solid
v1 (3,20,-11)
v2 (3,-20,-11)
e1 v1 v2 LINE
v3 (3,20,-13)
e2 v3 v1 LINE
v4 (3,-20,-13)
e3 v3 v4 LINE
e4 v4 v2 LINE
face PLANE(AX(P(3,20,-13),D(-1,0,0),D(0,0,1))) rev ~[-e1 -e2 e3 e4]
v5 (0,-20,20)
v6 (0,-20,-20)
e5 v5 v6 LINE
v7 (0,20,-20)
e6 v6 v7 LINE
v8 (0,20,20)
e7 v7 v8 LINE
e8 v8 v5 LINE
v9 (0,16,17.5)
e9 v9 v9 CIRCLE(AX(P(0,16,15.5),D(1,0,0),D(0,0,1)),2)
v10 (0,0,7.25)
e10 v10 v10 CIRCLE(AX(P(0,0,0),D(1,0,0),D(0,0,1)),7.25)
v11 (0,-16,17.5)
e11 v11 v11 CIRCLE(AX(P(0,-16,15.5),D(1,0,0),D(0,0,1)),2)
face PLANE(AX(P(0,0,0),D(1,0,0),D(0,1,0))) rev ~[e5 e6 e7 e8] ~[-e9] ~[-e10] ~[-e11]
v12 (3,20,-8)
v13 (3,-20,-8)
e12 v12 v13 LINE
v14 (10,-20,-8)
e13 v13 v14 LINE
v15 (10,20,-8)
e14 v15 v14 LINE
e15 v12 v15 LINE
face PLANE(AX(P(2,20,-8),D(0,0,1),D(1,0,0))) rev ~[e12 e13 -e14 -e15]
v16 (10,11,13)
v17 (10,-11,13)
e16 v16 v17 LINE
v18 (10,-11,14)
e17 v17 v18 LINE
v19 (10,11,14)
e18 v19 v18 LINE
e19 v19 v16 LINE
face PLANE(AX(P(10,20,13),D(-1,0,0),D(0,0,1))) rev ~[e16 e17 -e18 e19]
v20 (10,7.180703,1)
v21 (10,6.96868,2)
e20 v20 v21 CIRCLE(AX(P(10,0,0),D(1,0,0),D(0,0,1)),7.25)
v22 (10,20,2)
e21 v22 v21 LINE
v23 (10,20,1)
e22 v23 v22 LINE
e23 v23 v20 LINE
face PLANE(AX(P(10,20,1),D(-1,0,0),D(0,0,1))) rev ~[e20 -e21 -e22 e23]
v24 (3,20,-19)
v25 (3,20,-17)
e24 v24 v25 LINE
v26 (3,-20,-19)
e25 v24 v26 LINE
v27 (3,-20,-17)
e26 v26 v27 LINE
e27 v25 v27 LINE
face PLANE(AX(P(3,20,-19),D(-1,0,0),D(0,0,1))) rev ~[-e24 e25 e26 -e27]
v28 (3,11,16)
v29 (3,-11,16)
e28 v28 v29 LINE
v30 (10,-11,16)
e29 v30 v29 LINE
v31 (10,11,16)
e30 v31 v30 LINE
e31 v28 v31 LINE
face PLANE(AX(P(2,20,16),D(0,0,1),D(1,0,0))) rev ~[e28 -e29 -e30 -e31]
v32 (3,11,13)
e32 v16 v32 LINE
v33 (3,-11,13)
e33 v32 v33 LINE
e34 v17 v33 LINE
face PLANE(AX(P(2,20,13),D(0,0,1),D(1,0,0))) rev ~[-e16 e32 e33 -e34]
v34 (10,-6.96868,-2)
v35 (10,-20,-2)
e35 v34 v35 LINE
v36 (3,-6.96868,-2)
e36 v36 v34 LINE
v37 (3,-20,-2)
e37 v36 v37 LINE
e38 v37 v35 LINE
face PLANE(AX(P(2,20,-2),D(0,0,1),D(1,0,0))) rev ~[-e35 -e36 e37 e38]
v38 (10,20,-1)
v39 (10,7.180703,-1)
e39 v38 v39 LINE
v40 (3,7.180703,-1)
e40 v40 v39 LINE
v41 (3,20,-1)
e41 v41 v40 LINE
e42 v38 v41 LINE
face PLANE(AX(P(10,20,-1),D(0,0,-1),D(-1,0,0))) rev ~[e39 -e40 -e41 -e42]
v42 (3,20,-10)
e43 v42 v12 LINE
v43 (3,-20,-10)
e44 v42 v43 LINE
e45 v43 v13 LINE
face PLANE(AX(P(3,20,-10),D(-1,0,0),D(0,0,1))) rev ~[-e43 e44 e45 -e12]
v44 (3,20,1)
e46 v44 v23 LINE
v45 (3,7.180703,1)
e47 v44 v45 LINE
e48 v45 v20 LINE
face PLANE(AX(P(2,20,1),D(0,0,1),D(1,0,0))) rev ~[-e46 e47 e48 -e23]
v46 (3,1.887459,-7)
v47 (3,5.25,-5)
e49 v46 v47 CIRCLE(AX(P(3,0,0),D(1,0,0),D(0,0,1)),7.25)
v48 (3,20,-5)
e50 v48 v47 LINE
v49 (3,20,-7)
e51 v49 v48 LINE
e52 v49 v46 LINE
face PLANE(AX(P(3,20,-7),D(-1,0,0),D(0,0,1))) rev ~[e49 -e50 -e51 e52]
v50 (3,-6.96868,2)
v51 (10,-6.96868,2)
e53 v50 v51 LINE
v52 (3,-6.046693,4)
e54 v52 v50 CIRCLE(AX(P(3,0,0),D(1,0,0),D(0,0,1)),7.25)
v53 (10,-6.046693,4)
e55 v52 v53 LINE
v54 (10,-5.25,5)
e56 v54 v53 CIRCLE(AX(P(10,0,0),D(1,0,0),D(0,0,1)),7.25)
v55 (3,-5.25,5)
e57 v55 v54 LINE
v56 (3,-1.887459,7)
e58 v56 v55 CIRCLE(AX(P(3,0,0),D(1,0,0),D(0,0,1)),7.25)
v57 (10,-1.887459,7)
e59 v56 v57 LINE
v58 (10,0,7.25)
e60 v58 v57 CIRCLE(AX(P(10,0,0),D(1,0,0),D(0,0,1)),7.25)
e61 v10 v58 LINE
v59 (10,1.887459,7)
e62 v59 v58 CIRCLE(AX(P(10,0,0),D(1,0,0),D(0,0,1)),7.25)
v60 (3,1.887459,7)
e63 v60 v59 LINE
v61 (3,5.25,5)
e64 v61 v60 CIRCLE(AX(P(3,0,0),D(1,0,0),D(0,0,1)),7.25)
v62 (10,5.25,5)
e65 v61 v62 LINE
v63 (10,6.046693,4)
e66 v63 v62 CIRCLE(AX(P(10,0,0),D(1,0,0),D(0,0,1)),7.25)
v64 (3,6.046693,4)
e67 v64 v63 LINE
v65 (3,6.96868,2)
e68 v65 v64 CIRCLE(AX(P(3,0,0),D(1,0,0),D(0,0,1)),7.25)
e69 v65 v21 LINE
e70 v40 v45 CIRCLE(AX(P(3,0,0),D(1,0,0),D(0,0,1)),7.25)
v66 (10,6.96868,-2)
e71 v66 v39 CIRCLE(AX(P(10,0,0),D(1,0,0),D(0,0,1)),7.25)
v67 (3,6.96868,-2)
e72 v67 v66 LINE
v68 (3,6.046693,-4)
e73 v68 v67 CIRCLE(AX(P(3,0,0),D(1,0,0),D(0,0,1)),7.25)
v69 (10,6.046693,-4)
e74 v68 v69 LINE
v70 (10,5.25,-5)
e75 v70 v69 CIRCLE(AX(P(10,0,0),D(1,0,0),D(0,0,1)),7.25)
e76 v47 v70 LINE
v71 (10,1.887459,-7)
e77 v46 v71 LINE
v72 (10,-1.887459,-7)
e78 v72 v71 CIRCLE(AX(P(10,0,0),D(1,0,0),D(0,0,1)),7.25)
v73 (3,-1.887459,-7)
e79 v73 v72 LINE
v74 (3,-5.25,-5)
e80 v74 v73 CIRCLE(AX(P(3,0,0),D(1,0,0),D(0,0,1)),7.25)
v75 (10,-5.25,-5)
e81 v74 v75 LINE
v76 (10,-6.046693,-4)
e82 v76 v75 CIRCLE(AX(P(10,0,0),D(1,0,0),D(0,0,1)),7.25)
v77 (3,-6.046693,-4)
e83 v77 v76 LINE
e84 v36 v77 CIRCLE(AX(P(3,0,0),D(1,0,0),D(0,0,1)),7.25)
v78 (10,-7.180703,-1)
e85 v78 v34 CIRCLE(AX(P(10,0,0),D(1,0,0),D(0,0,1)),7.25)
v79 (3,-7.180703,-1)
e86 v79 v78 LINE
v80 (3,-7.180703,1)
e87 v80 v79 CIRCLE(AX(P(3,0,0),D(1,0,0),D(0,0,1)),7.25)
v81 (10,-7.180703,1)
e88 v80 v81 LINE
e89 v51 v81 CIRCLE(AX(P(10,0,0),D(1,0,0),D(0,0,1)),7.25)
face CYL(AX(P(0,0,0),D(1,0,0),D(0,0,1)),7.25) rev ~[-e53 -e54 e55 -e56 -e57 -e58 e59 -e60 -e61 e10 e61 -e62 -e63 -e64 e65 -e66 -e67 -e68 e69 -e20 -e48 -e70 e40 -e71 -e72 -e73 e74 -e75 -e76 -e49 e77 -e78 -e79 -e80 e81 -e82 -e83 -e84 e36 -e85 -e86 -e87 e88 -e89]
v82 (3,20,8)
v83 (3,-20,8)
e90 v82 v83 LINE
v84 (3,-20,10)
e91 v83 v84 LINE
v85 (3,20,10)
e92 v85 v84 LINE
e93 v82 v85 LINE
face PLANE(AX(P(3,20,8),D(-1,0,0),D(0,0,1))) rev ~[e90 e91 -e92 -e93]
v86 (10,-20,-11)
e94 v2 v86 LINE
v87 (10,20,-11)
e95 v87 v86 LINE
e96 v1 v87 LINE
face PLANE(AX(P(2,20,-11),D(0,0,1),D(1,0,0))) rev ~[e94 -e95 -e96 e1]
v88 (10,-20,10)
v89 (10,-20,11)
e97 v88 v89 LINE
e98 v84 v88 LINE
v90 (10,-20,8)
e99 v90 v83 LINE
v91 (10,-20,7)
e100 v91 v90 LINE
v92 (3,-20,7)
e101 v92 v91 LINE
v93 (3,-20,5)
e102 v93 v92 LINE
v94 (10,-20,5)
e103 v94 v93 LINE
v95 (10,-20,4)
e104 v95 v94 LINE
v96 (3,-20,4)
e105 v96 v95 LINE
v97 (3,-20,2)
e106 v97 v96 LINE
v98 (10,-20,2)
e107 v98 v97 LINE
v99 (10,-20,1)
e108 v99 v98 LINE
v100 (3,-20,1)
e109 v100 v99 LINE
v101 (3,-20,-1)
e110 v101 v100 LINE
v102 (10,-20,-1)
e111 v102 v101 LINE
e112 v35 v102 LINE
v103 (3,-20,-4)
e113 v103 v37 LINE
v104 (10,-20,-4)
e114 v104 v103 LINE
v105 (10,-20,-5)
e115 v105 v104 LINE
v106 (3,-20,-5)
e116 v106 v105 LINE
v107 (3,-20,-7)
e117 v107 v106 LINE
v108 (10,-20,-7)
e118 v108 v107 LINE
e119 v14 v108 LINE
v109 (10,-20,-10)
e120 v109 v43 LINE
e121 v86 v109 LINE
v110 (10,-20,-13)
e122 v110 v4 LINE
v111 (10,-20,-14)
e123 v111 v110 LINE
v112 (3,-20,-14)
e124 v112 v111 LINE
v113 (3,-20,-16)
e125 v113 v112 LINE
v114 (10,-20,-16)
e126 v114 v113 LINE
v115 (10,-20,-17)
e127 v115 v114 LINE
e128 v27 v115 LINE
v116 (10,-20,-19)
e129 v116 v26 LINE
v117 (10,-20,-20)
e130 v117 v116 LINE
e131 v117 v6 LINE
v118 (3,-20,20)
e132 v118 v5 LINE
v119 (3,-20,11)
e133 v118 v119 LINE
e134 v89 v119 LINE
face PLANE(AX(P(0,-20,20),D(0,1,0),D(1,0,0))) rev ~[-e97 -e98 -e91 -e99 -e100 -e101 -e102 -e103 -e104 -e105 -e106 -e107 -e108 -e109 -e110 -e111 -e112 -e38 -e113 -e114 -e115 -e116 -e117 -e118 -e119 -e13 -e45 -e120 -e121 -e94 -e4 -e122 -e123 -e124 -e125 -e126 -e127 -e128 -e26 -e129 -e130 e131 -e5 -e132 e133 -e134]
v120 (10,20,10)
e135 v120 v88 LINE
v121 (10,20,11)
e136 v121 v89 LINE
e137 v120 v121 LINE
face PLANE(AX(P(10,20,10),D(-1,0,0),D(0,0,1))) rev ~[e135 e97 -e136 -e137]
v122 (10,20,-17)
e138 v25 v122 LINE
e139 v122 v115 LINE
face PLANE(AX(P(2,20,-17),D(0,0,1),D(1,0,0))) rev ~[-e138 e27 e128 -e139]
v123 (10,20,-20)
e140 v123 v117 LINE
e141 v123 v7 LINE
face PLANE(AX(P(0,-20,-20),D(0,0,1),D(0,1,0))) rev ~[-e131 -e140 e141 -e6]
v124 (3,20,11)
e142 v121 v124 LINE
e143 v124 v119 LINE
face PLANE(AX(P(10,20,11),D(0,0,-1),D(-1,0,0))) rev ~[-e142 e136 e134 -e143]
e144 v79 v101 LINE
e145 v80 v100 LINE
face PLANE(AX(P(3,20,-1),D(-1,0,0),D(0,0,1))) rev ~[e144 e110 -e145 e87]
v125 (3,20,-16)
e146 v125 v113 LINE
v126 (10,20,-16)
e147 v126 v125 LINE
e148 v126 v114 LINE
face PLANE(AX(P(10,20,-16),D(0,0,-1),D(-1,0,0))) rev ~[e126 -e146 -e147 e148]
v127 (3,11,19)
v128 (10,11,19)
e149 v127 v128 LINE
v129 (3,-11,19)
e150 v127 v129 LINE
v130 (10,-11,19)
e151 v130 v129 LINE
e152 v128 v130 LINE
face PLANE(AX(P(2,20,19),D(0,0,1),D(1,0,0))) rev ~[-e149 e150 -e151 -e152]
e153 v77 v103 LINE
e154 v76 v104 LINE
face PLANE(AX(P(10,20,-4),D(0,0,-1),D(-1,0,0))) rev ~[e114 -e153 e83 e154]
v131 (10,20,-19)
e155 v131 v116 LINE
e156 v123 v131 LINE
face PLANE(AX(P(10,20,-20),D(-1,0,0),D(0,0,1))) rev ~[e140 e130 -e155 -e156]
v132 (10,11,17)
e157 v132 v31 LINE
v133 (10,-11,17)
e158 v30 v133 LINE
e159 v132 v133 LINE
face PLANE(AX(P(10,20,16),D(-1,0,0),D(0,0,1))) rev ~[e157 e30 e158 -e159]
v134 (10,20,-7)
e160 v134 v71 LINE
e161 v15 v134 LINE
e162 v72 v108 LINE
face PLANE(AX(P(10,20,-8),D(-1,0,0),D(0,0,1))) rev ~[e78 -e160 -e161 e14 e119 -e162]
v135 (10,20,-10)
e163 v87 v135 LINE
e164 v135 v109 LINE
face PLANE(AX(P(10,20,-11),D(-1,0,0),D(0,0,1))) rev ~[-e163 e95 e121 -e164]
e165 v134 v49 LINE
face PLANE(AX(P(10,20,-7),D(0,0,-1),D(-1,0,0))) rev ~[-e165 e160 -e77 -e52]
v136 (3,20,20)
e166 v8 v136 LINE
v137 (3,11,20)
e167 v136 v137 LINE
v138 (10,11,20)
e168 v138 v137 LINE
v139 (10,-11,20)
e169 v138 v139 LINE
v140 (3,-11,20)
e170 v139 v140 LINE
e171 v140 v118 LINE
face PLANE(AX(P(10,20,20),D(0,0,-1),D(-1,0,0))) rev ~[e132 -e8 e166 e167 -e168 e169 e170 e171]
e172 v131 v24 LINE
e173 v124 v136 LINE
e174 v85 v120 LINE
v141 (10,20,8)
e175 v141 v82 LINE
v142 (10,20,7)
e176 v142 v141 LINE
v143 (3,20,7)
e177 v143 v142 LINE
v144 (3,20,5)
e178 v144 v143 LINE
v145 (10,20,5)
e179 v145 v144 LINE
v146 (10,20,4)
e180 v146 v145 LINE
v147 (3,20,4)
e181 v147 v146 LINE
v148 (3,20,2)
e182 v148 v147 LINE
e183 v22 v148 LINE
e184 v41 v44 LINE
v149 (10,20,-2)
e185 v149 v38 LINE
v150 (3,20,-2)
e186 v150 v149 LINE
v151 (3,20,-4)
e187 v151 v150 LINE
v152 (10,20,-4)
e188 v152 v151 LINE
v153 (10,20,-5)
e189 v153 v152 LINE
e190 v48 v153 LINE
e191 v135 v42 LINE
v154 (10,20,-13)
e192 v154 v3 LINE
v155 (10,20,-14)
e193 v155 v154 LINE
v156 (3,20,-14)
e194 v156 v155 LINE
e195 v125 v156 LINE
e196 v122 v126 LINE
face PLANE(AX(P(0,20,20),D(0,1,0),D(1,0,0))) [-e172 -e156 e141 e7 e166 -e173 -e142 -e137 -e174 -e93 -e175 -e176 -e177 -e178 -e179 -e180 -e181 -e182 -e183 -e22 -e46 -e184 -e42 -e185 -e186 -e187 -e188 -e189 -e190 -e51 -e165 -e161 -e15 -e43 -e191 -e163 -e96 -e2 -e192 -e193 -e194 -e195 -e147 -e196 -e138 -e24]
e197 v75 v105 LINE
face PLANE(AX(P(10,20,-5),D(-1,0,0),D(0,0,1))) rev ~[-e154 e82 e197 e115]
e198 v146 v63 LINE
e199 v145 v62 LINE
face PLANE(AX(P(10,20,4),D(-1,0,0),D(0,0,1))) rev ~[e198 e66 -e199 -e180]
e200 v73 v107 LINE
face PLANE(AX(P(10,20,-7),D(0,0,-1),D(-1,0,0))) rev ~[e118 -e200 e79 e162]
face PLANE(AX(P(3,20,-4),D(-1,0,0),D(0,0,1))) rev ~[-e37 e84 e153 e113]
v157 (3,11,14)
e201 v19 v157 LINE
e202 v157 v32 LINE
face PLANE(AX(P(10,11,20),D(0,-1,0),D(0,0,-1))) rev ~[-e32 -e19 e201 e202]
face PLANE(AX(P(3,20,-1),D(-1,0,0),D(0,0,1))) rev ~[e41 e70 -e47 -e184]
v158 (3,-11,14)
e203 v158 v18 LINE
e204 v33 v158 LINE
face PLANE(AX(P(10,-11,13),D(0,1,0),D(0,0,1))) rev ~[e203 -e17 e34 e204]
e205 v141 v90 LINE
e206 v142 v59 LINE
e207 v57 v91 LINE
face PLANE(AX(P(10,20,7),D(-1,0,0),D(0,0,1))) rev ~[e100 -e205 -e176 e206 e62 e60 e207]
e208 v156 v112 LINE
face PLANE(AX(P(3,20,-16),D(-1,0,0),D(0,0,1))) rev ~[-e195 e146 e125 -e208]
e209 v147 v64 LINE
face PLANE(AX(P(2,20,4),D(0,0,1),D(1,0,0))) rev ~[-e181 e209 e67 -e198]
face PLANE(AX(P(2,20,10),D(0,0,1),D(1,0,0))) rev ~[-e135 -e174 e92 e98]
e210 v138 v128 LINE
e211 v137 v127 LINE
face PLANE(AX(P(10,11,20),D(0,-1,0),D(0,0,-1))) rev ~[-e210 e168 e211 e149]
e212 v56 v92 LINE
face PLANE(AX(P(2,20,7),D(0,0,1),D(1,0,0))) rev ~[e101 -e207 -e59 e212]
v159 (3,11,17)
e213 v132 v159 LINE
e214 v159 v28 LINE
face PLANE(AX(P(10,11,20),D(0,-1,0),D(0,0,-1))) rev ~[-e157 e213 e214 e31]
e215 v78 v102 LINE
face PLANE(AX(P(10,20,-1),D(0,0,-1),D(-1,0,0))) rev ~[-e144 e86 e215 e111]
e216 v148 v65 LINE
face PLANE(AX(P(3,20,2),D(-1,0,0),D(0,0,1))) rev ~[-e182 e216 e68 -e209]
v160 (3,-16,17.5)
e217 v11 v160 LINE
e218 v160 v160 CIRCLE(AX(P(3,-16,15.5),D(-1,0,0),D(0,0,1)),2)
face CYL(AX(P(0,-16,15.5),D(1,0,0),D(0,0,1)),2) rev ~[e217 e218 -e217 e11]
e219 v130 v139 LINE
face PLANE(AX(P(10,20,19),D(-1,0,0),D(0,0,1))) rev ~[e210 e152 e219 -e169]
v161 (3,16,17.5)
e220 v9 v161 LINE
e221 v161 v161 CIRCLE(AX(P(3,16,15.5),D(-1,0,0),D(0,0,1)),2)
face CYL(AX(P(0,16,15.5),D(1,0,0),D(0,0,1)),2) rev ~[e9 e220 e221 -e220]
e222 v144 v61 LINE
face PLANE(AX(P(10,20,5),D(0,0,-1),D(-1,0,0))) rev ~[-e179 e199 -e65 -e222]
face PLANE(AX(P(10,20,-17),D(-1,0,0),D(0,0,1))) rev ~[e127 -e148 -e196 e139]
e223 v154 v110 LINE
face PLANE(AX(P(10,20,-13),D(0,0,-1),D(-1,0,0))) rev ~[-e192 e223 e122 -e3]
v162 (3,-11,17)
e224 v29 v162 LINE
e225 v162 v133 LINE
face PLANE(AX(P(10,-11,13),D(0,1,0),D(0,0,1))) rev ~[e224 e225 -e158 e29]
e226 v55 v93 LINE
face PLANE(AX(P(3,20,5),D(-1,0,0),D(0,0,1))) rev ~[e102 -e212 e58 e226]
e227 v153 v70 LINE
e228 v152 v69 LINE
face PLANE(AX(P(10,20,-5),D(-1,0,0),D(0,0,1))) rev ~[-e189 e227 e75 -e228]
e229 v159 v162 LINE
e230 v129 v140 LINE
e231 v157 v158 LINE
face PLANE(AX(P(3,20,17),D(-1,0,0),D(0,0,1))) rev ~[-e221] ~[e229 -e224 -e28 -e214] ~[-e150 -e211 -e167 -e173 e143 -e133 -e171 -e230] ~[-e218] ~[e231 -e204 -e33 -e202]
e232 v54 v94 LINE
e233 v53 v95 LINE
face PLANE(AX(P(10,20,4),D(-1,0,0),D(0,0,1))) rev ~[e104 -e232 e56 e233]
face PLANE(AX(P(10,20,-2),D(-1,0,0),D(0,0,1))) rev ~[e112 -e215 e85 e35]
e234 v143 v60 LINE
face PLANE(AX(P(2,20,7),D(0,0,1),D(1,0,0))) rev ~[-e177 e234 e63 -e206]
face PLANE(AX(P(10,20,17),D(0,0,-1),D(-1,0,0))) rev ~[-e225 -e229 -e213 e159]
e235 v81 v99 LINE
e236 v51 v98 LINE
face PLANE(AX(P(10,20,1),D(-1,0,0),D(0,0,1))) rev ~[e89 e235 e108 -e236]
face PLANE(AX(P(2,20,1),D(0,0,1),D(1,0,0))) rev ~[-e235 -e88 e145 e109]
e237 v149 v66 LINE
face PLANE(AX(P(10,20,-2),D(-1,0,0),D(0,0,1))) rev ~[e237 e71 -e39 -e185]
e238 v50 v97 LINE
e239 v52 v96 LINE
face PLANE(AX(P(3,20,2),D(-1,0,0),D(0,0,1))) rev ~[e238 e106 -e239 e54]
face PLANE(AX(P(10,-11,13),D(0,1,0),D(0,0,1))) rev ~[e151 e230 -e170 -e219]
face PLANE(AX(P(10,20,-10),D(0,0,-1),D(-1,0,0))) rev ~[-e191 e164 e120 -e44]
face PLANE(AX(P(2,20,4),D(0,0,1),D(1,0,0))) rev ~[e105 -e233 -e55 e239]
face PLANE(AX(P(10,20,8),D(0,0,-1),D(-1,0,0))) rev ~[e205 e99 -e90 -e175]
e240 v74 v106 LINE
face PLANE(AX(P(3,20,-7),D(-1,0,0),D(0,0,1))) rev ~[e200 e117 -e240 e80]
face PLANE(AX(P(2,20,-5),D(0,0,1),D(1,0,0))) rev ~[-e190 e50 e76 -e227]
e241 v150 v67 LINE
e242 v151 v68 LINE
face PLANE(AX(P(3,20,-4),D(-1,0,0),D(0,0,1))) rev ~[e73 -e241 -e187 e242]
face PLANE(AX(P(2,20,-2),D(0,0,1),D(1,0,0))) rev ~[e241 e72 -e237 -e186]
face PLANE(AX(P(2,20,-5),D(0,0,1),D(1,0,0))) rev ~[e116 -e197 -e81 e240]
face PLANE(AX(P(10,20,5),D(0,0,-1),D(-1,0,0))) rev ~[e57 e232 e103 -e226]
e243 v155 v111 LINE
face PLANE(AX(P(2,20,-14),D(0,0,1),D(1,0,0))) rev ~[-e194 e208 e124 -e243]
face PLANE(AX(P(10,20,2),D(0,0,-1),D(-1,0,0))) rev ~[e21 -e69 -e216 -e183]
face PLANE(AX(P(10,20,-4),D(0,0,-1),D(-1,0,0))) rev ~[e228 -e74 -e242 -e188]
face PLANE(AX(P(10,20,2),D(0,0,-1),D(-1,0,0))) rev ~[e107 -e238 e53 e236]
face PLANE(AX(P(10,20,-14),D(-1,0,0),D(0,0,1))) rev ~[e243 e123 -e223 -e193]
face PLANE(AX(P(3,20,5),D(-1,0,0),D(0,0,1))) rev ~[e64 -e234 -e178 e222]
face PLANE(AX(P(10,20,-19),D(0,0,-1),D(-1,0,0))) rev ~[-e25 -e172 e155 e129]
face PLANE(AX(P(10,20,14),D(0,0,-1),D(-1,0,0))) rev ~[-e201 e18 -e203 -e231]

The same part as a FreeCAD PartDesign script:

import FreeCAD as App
import Part
import Sketcher
from FreeCAD import Vector


def add_polygon(sketch, points):
    """Adds a closed chain of lines whose ends are joined by coincident constraints."""
    first, n = sketch.GeometryCount, len(points)
    for a, b in zip(points, points[1:] + points[:1]):
        sketch.addGeometry(Part.LineSegment(App.Vector(*a, 0), App.Vector(*b, 0)), False)
    for i in range(n):
        sketch.addConstraint(Sketcher.Constraint("Coincident", first + i, 2, first + (i + 1) % n, 1))

doc = App.newDocument("Part")
body = doc.addObject("PartDesign::Body", "Body")

# Sketch on YZ plane
sketch1 = body.newObject("Sketcher::SketchObject", "Sketch")
sketch1.AttachmentSupport = (doc.getObject("YZ_Plane"), [""])
sketch1.MapMode = "FlatFace"
add_polygon(sketch1, [(20, -20), (20, 20), (-20, 20), (-20, -20)])  # lines 0-3
sketch1.addConstraint(Sketcher.Constraint("Vertical", 0))
sketch1.addConstraint(Sketcher.Constraint("Horizontal", 1))
sketch1.addConstraint(Sketcher.Constraint("Vertical", 2))
sketch1.addConstraint(Sketcher.Constraint("Horizontal", 3))
sketch1.addConstraint(Sketcher.Constraint("Symmetric", 0, 2, 2, 2, -1, 1))
sketch1.addConstraint(Sketcher.Constraint("Equal", 3, 0))
sketch1.addConstraint(Sketcher.Constraint("DistanceX", 1, 2, 1, 1, 40.0))
pad1 = body.newObject("PartDesign::Pad", "Pad")
pad1.Profile = sketch1
pad1.Length = 2

# Sketch on XZ plane
sketch2 = body.newObject("Sketcher::SketchObject", "Sketch001")
sketch2.AttachmentSupport = (doc.getObject("XZ_Plane"), [""])
sketch2.MapMode = "FlatFace"
sketch2.AttachmentOffset = App.Placement(Vector(0, 0, -20), App.Rotation())
add_polygon(sketch2, [(10, -20), (2, -20), (2, -17), (3, -17), (3, -19), (10, -19)])  # lines 0-5
sketch2.addConstraint(Sketcher.Constraint("Horizontal", 0))
sketch2.addConstraint(Sketcher.Constraint("Vertical", 1))
sketch2.addConstraint(Sketcher.Constraint("Horizontal", 2))
sketch2.addConstraint(Sketcher.Constraint("Vertical", 3))
sketch2.addConstraint(Sketcher.Constraint("Horizontal", 4))
sketch2.addConstraint(Sketcher.Constraint("Vertical", 5))
sketch2.addConstraint(Sketcher.Constraint("Equal", 2, 5))
sketch2.addConstraint(Sketcher.Constraint("DistanceX", 0, 2, 0, 1, 8.0))
sketch2.addConstraint(Sketcher.Constraint("DistanceX", 2, 1, 2, 2, 1.0))
sketch2.addConstraint(Sketcher.Constraint("DistanceY", 3, 2, 3, 1, 2.0))
sketch2.addConstraint(Sketcher.Constraint("DistanceX", -1, 1, 0, 2, 2.0))
sketch2.addConstraint(Sketcher.Constraint("DistanceY", 0, 2, -1, 1, 20.0))
pad2 = body.newObject("PartDesign::Pad", "Pad001")
pad2.Profile = sketch2
pad2.Length = 40
doc.recompute()

linearpattern = body.newObject("PartDesign::LinearPattern", "LinearPattern")
linearpattern.Originals = [pad2]
linearpattern.Direction = (doc.getObject("Z_Axis"), [""])
linearpattern.Mode = "offset"
linearpattern.Offset = 3
linearpattern.Occurrences = 13
body.Tip = linearpattern

# Sketch on XZ plane
sketch3 = body.newObject("Sketcher::SketchObject", "Sketch002")
sketch3.AttachmentSupport = (doc.getObject("XZ_Plane"), [""])
sketch3.MapMode = "FlatFace"
sketch3.AttachmentOffset = App.Placement(Vector(0, 0, -20), App.Rotation())
add_polygon(sketch3, [(10, 19), (2, 19), (2, 20), (10, 20)])  # lines 0-3
sketch3.addConstraint(Sketcher.Constraint("Horizontal", 0))
sketch3.addConstraint(Sketcher.Constraint("Vertical", 1))
sketch3.addConstraint(Sketcher.Constraint("Horizontal", 2))
sketch3.addConstraint(Sketcher.Constraint("Vertical", 3))
sketch3.addConstraint(Sketcher.Constraint("DistanceX", 0, 2, 0, 1, 8.0))
sketch3.addConstraint(Sketcher.Constraint("DistanceY", 1, 1, 1, 2, 1.0))
sketch3.addConstraint(Sketcher.Constraint("DistanceX", -1, 1, 0, 2, 2.0))
sketch3.addConstraint(Sketcher.Constraint("DistanceY", -1, 1, 0, 2, 19.0))
pad3 = body.newObject("PartDesign::Pad", "Pad002")
pad3.Profile = sketch3
pad3.Length = 40

# Sketch on YZ plane
sketch4 = body.newObject("Sketcher::SketchObject", "Sketch003")
sketch4.AttachmentSupport = (doc.getObject("YZ_Plane"), [""])
sketch4.MapMode = "FlatFace"
sketch4.addGeometry(Part.Circle(Vector(0, 0, 0), Vector(0, 0, 1), 7), False)
sketch4.addConstraint(Sketcher.Constraint("Coincident", 0, 3, -1, 1))
sketch4.addConstraint(Sketcher.Constraint("Diameter", 0, 14.5))
doc.recompute()
hole = body.newObject("PartDesign::Hole", "Hole")
hole.Profile = sketch4
hole.ThreadType = "None"
hole.Diameter = 14.5
hole.DepthType = "ThroughAll"
hole.Reversed = True

# Sketch on YZ plane
sketch5 = body.newObject("Sketcher::SketchObject", "Sketch004")
sketch5.AttachmentSupport = (doc.getObject("YZ_Plane"), [""])
sketch5.MapMode = "FlatFace"
sketch5.addGeometry(Part.Circle(Vector(-16, 15.5, 0), Vector(0, 0, 1), 2), False)
sketch5.addGeometry(Part.Circle(Vector(16, 15.5, 0), Vector(0, 0, 1), 2), False)
sketch5.addConstraint(Sketcher.Constraint("Equal", 0, 1))
sketch5.addConstraint(Sketcher.Constraint("Symmetric", 0, 3, 1, 3, -2))
sketch5.addConstraint(Sketcher.Constraint("Diameter", 0, 4.0))
sketch5.addConstraint(Sketcher.Constraint("DistanceX", 0, 3, -1, 1, 16.0))
sketch5.addConstraint(Sketcher.Constraint("DistanceY", -1, 1, 0, 3, 15.5))
doc.recompute()
hole2 = body.newObject("PartDesign::Hole", "Hole001")
hole2.Profile = sketch5
hole2.ThreadType = "None"
hole2.Diameter = 4
hole2.DepthType = "ThroughAll"
hole2.Reversed = True

# Sketch on YZ plane
sketch6 = body.newObject("Sketcher::SketchObject", "Sketch005")
sketch6.AttachmentSupport = (doc.getObject("YZ_Plane"), [""])
sketch6.MapMode = "FlatFace"
sketch6.AttachmentOffset = App.Placement(Vector(0, 0, 10), App.Rotation())
add_polygon(sketch6, [(20, 13), (20, 20), (11, 20), (11, 13)])  # lines 0-3
add_polygon(sketch6, [(-11, 13), (-11, 20), (-20, 20), (-20, 13)])  # lines 4-7
sketch6.addConstraint(Sketcher.Constraint("Vertical", 0))
sketch6.addConstraint(Sketcher.Constraint("Horizontal", 1))
sketch6.addConstraint(Sketcher.Constraint("Vertical", 2))
sketch6.addConstraint(Sketcher.Constraint("Horizontal", 3))
sketch6.addConstraint(Sketcher.Constraint("Vertical", 4))
sketch6.addConstraint(Sketcher.Constraint("Horizontal", 5))
sketch6.addConstraint(Sketcher.Constraint("Vertical", 6))
sketch6.addConstraint(Sketcher.Constraint("Horizontal", 7))
sketch6.addConstraint(Sketcher.Constraint("Symmetric", 1, 2, 4, 2, -2))
sketch6.addConstraint(Sketcher.Constraint("Symmetric", 3, 2, 6, 2, -2))
sketch6.addConstraint(Sketcher.Constraint("DistanceX", 1, 2, 1, 1, 9.0))
sketch6.addConstraint(Sketcher.Constraint("DistanceY", 0, 1, 0, 2, 7.0))
sketch6.addConstraint(Sketcher.Constraint("DistanceX", -1, 1, 0, 2, 20.0))
sketch6.addConstraint(Sketcher.Constraint("DistanceY", -1, 1, 0, 2, 20.0))
pocket1 = body.newObject("PartDesign::Pocket", "Pocket")
pocket1.Profile = sketch6
pocket1.Length = 7

doc.recompute()
